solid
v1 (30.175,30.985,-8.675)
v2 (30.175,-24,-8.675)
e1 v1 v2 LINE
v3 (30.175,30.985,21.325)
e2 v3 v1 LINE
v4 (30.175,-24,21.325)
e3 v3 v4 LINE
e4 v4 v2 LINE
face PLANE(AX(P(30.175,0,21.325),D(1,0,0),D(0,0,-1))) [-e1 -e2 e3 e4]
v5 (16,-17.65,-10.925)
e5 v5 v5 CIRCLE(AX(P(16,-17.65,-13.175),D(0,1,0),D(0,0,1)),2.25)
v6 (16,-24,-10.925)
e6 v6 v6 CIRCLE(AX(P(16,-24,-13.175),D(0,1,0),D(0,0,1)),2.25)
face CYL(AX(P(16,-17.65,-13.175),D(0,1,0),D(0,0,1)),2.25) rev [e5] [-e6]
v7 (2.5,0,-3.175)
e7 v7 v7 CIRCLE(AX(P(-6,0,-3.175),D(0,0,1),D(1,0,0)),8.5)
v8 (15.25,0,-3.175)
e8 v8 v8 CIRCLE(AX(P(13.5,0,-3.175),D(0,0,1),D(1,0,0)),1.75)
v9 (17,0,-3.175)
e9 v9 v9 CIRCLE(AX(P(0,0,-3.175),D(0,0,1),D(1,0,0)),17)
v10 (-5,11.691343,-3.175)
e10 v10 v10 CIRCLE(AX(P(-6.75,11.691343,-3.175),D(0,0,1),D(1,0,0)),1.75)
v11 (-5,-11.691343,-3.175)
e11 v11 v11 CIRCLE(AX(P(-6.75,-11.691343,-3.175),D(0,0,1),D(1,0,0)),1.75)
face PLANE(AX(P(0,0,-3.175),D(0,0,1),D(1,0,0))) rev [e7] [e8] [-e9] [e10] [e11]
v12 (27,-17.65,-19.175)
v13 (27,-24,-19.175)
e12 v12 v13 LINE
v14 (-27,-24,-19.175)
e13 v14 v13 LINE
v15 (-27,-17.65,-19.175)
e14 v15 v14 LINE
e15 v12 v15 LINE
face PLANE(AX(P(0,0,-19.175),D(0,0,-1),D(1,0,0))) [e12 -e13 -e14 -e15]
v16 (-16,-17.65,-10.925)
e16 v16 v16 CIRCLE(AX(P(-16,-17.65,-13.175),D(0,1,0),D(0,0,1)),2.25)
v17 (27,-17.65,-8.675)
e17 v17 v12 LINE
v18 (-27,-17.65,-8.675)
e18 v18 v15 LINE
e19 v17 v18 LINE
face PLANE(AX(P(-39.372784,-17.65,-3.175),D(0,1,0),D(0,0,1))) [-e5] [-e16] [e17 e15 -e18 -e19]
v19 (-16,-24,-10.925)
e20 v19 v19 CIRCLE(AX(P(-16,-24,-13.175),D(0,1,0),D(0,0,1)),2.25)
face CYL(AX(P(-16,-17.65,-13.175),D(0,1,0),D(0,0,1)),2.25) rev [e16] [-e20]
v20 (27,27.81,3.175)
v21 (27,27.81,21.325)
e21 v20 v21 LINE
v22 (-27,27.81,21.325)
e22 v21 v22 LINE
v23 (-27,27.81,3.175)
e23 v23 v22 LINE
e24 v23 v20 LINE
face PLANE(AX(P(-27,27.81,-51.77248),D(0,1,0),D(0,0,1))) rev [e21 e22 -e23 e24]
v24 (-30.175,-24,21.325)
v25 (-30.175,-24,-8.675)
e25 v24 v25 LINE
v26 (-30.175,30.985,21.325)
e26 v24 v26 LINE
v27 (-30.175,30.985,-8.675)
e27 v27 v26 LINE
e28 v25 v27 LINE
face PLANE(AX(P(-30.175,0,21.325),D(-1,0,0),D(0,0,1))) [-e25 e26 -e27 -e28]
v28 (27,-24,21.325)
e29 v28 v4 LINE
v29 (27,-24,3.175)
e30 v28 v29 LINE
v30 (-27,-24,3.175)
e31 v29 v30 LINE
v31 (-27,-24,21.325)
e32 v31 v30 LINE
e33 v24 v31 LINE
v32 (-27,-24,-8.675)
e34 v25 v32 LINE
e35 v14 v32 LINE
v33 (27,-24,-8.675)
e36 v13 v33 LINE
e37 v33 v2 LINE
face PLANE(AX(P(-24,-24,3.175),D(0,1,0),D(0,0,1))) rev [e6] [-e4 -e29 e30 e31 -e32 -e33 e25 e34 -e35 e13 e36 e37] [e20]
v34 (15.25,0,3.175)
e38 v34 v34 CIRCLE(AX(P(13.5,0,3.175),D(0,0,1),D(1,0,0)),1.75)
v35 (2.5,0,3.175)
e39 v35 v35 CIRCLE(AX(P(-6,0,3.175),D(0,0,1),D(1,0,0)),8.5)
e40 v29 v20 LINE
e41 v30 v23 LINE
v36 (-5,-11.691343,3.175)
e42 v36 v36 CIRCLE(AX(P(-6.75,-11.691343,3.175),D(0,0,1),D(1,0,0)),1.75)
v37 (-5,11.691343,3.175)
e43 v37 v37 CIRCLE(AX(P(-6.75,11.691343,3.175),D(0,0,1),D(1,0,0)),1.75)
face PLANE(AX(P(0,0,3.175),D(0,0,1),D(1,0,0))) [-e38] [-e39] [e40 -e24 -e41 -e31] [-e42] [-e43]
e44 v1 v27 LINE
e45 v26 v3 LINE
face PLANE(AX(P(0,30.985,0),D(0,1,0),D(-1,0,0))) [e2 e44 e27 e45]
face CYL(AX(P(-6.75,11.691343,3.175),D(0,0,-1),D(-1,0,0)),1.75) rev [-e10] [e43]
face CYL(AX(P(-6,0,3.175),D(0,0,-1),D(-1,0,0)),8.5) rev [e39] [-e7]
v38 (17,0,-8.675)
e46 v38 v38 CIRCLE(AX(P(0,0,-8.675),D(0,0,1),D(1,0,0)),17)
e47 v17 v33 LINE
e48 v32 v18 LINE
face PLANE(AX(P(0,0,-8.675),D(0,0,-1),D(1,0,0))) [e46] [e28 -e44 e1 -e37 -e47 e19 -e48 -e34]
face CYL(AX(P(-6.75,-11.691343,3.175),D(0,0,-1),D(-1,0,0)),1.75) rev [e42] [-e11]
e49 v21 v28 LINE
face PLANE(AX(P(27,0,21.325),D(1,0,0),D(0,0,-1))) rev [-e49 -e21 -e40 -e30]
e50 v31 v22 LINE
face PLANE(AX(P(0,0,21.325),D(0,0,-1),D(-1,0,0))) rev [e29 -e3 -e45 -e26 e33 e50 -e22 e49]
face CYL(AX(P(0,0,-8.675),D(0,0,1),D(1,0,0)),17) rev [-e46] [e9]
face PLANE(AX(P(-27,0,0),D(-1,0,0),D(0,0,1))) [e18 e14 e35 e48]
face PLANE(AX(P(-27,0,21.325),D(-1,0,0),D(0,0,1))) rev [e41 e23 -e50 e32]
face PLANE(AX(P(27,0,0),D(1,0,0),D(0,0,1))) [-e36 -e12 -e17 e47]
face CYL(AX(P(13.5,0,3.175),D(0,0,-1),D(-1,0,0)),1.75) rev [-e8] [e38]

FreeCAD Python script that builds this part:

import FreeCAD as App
import Part
import Sketcher
from FreeCAD import Vector
Q = App.Units.Quantity


def add_polygon(sketch, points):
    """Adds a closed chain of lines whose ends are joined by coincident constraints."""
    first, n = sketch.GeometryCount, len(points)
    for a, b in zip(points, points[1:] + points[:1]):
        sketch.addGeometry(Part.LineSegment(App.Vector(*a, 0), App.Vector(*b, 0)), False)
    for i in range(n):
        sketch.addConstraint(Sketcher.Constraint("Coincident", first + i, 2, first + (i + 1) % n, 1))

doc = App.newDocument("Part")
body = doc.addObject("PartDesign::Body", "Body")

# Sketch on XY plane
sketch1 = doc.addObject("Sketcher::SketchObject", "Sketch")
body.addObject(sketch1)
sketch1.AttachmentSupport = (doc.XY_Plane, [""])
sketch1.MapMode = "FlatFace"
add_polygon(sketch1, [(-24, 24), (-24, -24), (24, -24), (24, 24)])  # lines 0-3
sketch1.addGeometry(Part.Circle(Vector(-6.8, -11.7, 0), Vector(0, 0, 1), 1.8), False)  # 4
sketch1.addGeometry(Part.Circle(Vector(-6, 0, 0), Vector(0, 0, 1), 8.5), False)  # 5
sketch1.addGeometry(Part.Circle(Vector(-6.8, 11.7, 0), Vector(0, 0, 1), 1.8), False)  # 6
sketch1.addGeometry(Part.Circle(Vector(13.5, 0, 0), Vector(0, 0, 1), 1.8), False)  # 7
sketch1.addConstraint(Sketcher.Constraint("Vertical", 0))
sketch1.addConstraint(Sketcher.Constraint("Horizontal", 1))
sketch1.addConstraint(Sketcher.Constraint("Vertical", 2))
sketch1.addConstraint(Sketcher.Constraint("Horizontal", 3))
sketch1.addConstraint(Sketcher.Constraint("Equal", 4, 6))
sketch1.addConstraint(Sketcher.Constraint("Equal", 6, 7))
sketch1.addConstraint(Sketcher.Constraint("Symmetric", 0, 2, 2, 2, -1, 1))
sketch1.addConstraint(Sketcher.Constraint("Symmetric", 4, 3, 6, 3, -1))
sketch1.addConstraint(Sketcher.Constraint("PointOnObject", 5, 3, -1))
sketch1.addConstraint(Sketcher.Constraint("PointOnObject", 7, 3, -1))
sketch1.addConstraint(Sketcher.Constraint("Equal", 3, 0))
sketch1.addConstraint(Sketcher.Constraint("Diameter", 5, Q("17 mm")))
sketch1.addConstraint(Sketcher.Constraint("Diameter", 4, Q("3.5 mm")))
sketch1.addConstraint(Sketcher.Constraint("DistanceX", 1, 1, 1, 2, Q("48 mm")))
sketch1.addConstraint(Sketcher.Constraint("DistanceX", 5, 3, -1, 1, Q("6 mm")))
sketch1.addConstraint(Sketcher.Constraint("DistanceX", -1, 1, 7, 3, Q("13.5 mm")))
sketch1.addConstraint(Sketcher.Constraint("DistanceX", 4, 3, -1, 1, Q("6.75 mm")))
sketch1.addConstraint(Sketcher.Constraint("DistanceY", 4, 3, -1, 1, Q("11.691343 mm")))
pad1 = doc.addObject("PartDesign::Pad", "Pad")
body.addObject(pad1)
pad1.Profile = sketch1
pad1.Length = 6.35
pad1.Midplane = True

# Sketch on YZ plane
sketch2 = doc.addObject("Sketcher::SketchObject", "Sketch001")
body.addObject(sketch2)
sketch2.AttachmentSupport = (doc.YZ_Plane, [""])
sketch2.MapMode = "FlatFace"
sketch2.AttachmentOffset = App.Placement(Vector(0, 0, 24), App.Rotation())
add_polygon(sketch2, [(-18, -3), (-24, -3), (-24, -17), (-18, -17)])  # lines 0-3
sketch2.addConstraint(Sketcher.Constraint("Horizontal", 0))
sketch2.addConstraint(Sketcher.Constraint("Vertical", 1))
sketch2.addConstraint(Sketcher.Constraint("Horizontal", 2))
sketch2.addConstraint(Sketcher.Constraint("Vertical", 3))
sketch2.addConstraint(Sketcher.Constraint("DistanceY", 1, 2, 1, 1, Q("14 mm")))
sketch2.addConstraint(Sketcher.Constraint("DistanceX", 0, 2, -1, 1, Q("24 mm")))
sketch2.addConstraint(Sketcher.Constraint("DistanceX", 0, 2, 0, 1, Q("6.35 mm")))
sketch2.addConstraint(Sketcher.Constraint("DistanceY", 0, 2, -1, 1, Q("3.175 mm")))
pad2 = doc.addObject("PartDesign::Pad", "Pad001")
body.addObject(pad2)
pad2.Profile = sketch2
pad2.Length = 48
pad2.Reversed = True

# Sketch on XY plane
sketch3 = doc.addObject("Sketcher::SketchObject", "Sketch002")
body.addObject(sketch3)
sketch3.AttachmentSupport = (doc.XY_Plane, [""])
sketch3.MapMode = "FlatFace"
sketch3.AttachmentOffset = App.Placement(Vector(0, 0, 3.175), App.Rotation())
add_polygon(sketch3, [(-24, 24), (-24, -24), (24, -24), (24, 24)])  # lines 0-3
sketch3.addGeometry(Part.Circle(Vector(0, 0, 0), Vector(0, 0, 1), 17), False)  # 4
sketch3.addConstraint(Sketcher.Constraint("Vertical", 0))
sketch3.addConstraint(Sketcher.Constraint("Horizontal", 1))
sketch3.addConstraint(Sketcher.Constraint("Vertical", 2))
sketch3.addConstraint(Sketcher.Constraint("Horizontal", 3))
sketch3.addConstraint(Sketcher.Constraint("Coincident", 4, 3, -1, 1))
sketch3.addConstraint(Sketcher.Constraint("Symmetric", 0, 2, 2, 2, -1, 1))
sketch3.addConstraint(Sketcher.Constraint("Equal", 3, 0))
sketch3.addConstraint(Sketcher.Constraint("Diameter", 4, Q("34 mm")))
sketch3.addConstraint(Sketcher.Constraint("DistanceX", 1, 1, 1, 2, Q("48 mm")))
pad3 = doc.addObject("PartDesign::Pad", "Pad002")
body.addObject(pad3)
pad3.Profile = sketch3
pad3.Length = 5.5
doc.recompute()

mirrored = doc.addObject("PartDesign::Mirrored", "Mirrored")
body.addObject(mirrored)
mirrored.Originals = [pad2, pad3]
mirrored.MirrorPlane = (doc.XY_Plane, [""])
body.Tip = mirrored

# Sketch on XZ plane
sketch4 = doc.addObject("Sketcher::SketchObject", "Sketch003")
body.addObject(sketch4)
sketch4.AttachmentSupport = (doc.XZ_Plane, [""])
sketch4.MapMode = "FlatFace"
sketch4.AttachmentOffset = App.Placement(Vector(0, 0, 17.65), App.Rotation())
sketch4.addGeometry(Part.Circle(Vector(-16, 13.2, 0), Vector(0, 0, 1), 2.2), False)
sketch4.addGeometry(Part.Circle(Vector(16, 13.2, 0), Vector(0, 0, 1), 2.2), False)
sketch4.addGeometry(Part.Circle(Vector(16, -13.2, 0), Vector(0, 0, 1), 2.2), False)
sketch4.addGeometry(Part.Circle(Vector(-16, -13.2, 0), Vector(0, 0, 1), 2.2), False)
sketch4.addConstraint(Sketcher.Constraint("Equal", 0, 1))
sketch4.addConstraint(Sketcher.Constraint("Equal", 1, 2))
sketch4.addConstraint(Sketcher.Constraint("Equal", 2, 3))
sketch4.addConstraint(Sketcher.Constraint("Symmetric", 0, 3, 2, 3, -1, 1))
sketch4.addConstraint(Sketcher.Constraint("Symmetric", 1, 3, 3, 3, -1, 1))
sketch4.addConstraint(Sketcher.Constraint("Symmetric", 0, 3, 1, 3, -2))
sketch4.addConstraint(Sketcher.Constraint("Diameter", 0, Q("4.5 mm")))
sketch4.addConstraint(Sketcher.Constraint("DistanceX", 0, 3, -1, 1, Q("16 mm")))
sketch4.addConstraint(Sketcher.Constraint("DistanceY", 2, 3, 1, 3, Q("26.35 mm")))
doc.recompute()
hole = doc.addObject("PartDesign::Hole", "Hole")
body.addObject(hole)
hole.Profile = sketch4
hole.ThreadType = "None"
hole.Diameter = 4.5
hole.DepthType = "ThroughAll"
hole.Reversed = True

# Sketch on XY plane
sketch5 = doc.addObject("Sketcher::SketchObject", "Sketch004")
body.addObject(sketch5)
sketch5.AttachmentSupport = (doc.XY_Plane, [""])
sketch5.MapMode = "FlatFace"
sketch5.AttachmentOffset = App.Placement(Vector(0, 0, 17.175), App.Rotation())
add_polygon(sketch5, [(-24, -18), (-24, -24), (24, -24), (24, -18)])  # lines 0-3
sketch5.addConstraint(Sketcher.Constraint("Vertical", 0))
sketch5.addConstraint(Sketcher.Constraint("Horizontal", 1))
sketch5.addConstraint(Sketcher.Constraint("Vertical", 2))
sketch5.addConstraint(Sketcher.Constraint("Horizontal", 3))
sketch5.addConstraint(Sketcher.Constraint("DistanceX", 1, 1, 1, 2, Q("48 mm")))
sketch5.addConstraint(Sketcher.Constraint("DistanceX", 0, 2, -1, 1, Q("24 mm")))
sketch5.addConstraint(Sketcher.Constraint("DistanceY", 0, 2, -1, 1, Q("24 mm")))
sketch5.addConstraint(Sketcher.Constraint("DistanceY", 0, 2, 0, 1, Q("6.35 mm")))
pad4 = doc.addObject("PartDesign::Pad", "Pad003")
body.addObject(pad4)
pad4.Profile = sketch5
pad4.Length = 2
doc.recompute()

mirrored2 = doc.addObject("PartDesign::Mirrored", "Mirrored001")
body.addObject(mirrored2)
mirrored2.Originals = [pad4]
mirrored2.MirrorPlane = (doc.XY_Plane, [""])
body.Tip = mirrored2

# Sketch on YZ plane
sketch6 = doc.addObject("Sketcher::SketchObject", "Sketch005")
body.addObject(sketch6)
sketch6.AttachmentSupport = (doc.YZ_Plane, [""])
sketch6.MapMode = "FlatFace"
sketch6.AttachmentOffset = App.Placement(Vector(0, 0, -24), App.Rotation())
add_polygon(sketch6, [(-18, -19), (-24, -19), (-24, 19), (-18, 19), (-18, 9), (24, 9), (24, -9), (-18, -9)])  # lines 0-7
sketch6.addConstraint(Sketcher.Constraint("Horizontal", 0))
sketch6.addConstraint(Sketcher.Constraint("Vertical", 1))
sketch6.addConstraint(Sketcher.Constraint("Horizontal", 2))
sketch6.addConstraint(Sketcher.Constraint("Vertical", 3))
sketch6.addConstraint(Sketcher.Constraint("Horizontal", 4))
sketch6.addConstraint(Sketcher.Constraint("Vertical", 5))
sketch6.addConstraint(Sketcher.Constraint("Horizontal", 6))
sketch6.addConstraint(Sketcher.Constraint("Vertical", 7))
sketch6.addConstraint(Sketcher.Constraint("Symmetric", 3, 2, 6, 2, -1))
sketch6.addConstraint(Sketcher.Constraint("Equal", 3, 7))
sketch6.addConstraint(Sketcher.Constraint("DistanceY", 3, 2, 3, 1, Q("10.5 mm")))
sketch6.addConstraint(Sketcher.Constraint("DistanceX", 0, 2, -1, 1, Q("24 mm")))
sketch6.addConstraint(Sketcher.Constraint("DistanceX", -1, 1, 4, 2, Q("24 mm")))
sketch6.addConstraint(Sketcher.Constraint("DistanceX", 0, 2, 0, 1, Q("6.35 mm")))
sketch6.addConstraint(Sketcher.Constraint("DistanceY", 1, 1, 1, 2, Q("38.35 mm")))
pad5 = doc.addObject("PartDesign::Pad", "Pad004")
body.addObject(pad5)
pad5.Profile = sketch6
pad5.Length = 3
pad5.Reversed = True
doc.recompute()

mirrored3 = doc.addObject("PartDesign::Mirrored", "Mirrored002")
body.addObject(mirrored3)
mirrored3.Originals = [pad5]
mirrored3.MirrorPlane = (doc.YZ_Plane, [""])
body.Tip = mirrored3

# Sketch on XY plane
sketch7 = doc.addObject("Sketcher::SketchObject", "Sketch006")
body.addObject(sketch7)
sketch7.AttachmentSupport = (doc.XY_Plane, [""])
sketch7.MapMode = "FlatFace"
sketch7.AttachmentOffset = App.Placement(Vector(0, 0, 19.175), App.Rotation())
add_polygon(sketch7, [(-27, 24), (-27, -24), (27, -24), (27, 24)])  # lines 0-3
sketch7.addConstraint(Sketcher.Constraint("Vertical", 0))
sketch7.addConstraint(Sketcher.Constraint("Horizontal", 1))
sketch7.addConstraint(Sketcher.Constraint("Vertical", 2))
sketch7.addConstraint(Sketcher.Constraint("Horizontal", 3))
sketch7.addConstraint(Sketcher.Constraint("Symmetric", 0, 2, 2, 2, -1, 1))
sketch7.addConstraint(Sketcher.Constraint("DistanceX", 1, 1, 1, 2, Q("54 mm")))
sketch7.addConstraint(Sketcher.Constraint("DistanceY", 0, 2, 0, 1, Q("48 mm")))
pocket1 = doc.addObject("PartDesign::Pocket", "Pocket")
body.addObject(pocket1)
pocket1.Profile = sketch7
pocket1.Length = 16

# Sketch on XY plane
sketch8 = doc.addObject("Sketcher::SketchObject", "Sketch007")
body.addObject(sketch8)
sketch8.AttachmentSupport = (doc.XY_Plane, [""])
sketch8.MapMode = "FlatFace"
sketch8.AttachmentOffset = App.Placement(Vector(0, 0, -8.675), App.Rotation())
add_polygon(sketch8, [(-27, -24), (-30.2, -24), (-30.2, 20.8), (30.2, 20.8), (30.2, -24), (27, -24), (27, 17.6), (-27, 17.6)])  # lines 0-7
sketch8.addConstraint(Sketcher.Constraint("Horizontal", 0))
sketch8.addConstraint(Sketcher.Constraint("Vertical", 1))
sketch8.addConstraint(Sketcher.Constraint("Horizontal", 2))
sketch8.addConstraint(Sketcher.Constraint("Vertical", 3))
sketch8.addConstraint(Sketcher.Constraint("Horizontal", 4))
sketch8.addConstraint(Sketcher.Constraint("Vertical", 5))
sketch8.addConstraint(Sketcher.Constraint("Horizontal", 6))
sketch8.addConstraint(Sketcher.Constraint("Vertical", 7))
sketch8.addConstraint(Sketcher.Constraint("Symmetric", 0, 2, 3, 2, -2))
sketch8.addConstraint(Sketcher.Constraint("Equal", 0, 4))
sketch8.addConstraint(Sketcher.Constraint("DistanceX", 6, 2, 6, 1, Q("54 mm")))
sketch8.addConstraint(Sketcher.Constraint("DistanceY", 0, 2, -1, 1, Q("24 mm")))
sketch8.addConstraint(Sketcher.Constraint("DistanceX", 2, 1, 2, 2, Q("60.35 mm")))
sketch8.addConstraint(Sketcher.Constraint("DistanceY", 5, 1, 5, 2, Q("41.65 mm")))
sketch8.addConstraint(Sketcher.Constraint("DistanceY", 1, 1, 1, 2, Q("44.825 mm")))
pad6 = doc.addObject("PartDesign::Pad", "Pad005")
body.addObject(pad6)
pad6.Profile = sketch8
pad6.Length = 30

# Sketch on XY plane
sketch9 = doc.addObject("Sketcher::SketchObject", "Sketch008")
body.addObject(sketch9)
sketch9.AttachmentSupport = (doc.XY_Plane, [""])
sketch9.MapMode = "FlatFace"
sketch9.AttachmentOffset = App.Placement(Vector(0, 0, 3.175), App.Rotation())
add_polygon(sketch9, [(-27, 24), (-27, 20.8), (27, 20.8), (27, 24)])  # lines 0-3
sketch9.addConstraint(Sketcher.Constraint("Vertical", 0))
sketch9.addConstraint(Sketcher.Constraint("Horizontal", 1))
sketch9.addConstraint(Sketcher.Constraint("Vertical", 2))
sketch9.addConstraint(Sketcher.Constraint("Horizontal", 3))
sketch9.addConstraint(Sketcher.Constraint("DistanceX", 1, 1, 1, 2, Q("54 mm")))
sketch9.addConstraint(Sketcher.Constraint("DistanceX", 0, 2, -1, 1, Q("27 mm")))
sketch9.addConstraint(Sketcher.Constraint("DistanceY", -1, 1, 2, 2, Q("24 mm")))
sketch9.addConstraint(Sketcher.Constraint("DistanceY", 0, 2, 0, 1, Q("3.175 mm")))
pocket2 = doc.addObject("PartDesign::Pocket", "Pocket001")
body.addObject(pocket2)
pocket2.Profile = sketch9
pocket2.Type = "ThroughAll"

# Sketch on XZ plane
sketch10 = doc.addObject("Sketcher::SketchObject", "Sketch009")
body.addObject(sketch10)
sketch10.AttachmentSupport = (doc.XZ_Plane, [""])
sketch10.MapMode = "FlatFace"
sketch10.AttachmentOffset = App.Placement(Vector(0, 0, -20.825), App.Rotation())
add_polygon(sketch10, [(-30, -9), (-30, 21), (30, 21), (30, -9)])  # lines 0-3
sketch10.addConstraint(Sketcher.Constraint("Vertical", 0))
sketch10.addConstraint(Sketcher.Constraint("Horizontal", 1))
sketch10.addConstraint(Sketcher.Constraint("Vertical", 2))
sketch10.addConstraint(Sketcher.Constraint("Horizontal", 3))
sketch10.addConstraint(Sketcher.Constraint("DistanceY", 0, 1, 0, 2, Q("30 mm")))
sketch10.addConstraint(Sketcher.Constraint("DistanceX", 1, 1, 1, 2, Q("60.35 mm")))
sketch10.addConstraint(Sketcher.Constraint("DistanceX", 0, 2, -1, 1, Q("30.175 mm")))
sketch10.addConstraint(Sketcher.Constraint("DistanceY", -1, 1, 0, 2, Q("21.325 mm")))
pad7 = doc.addObject("PartDesign::Pad", "Pad006")
body.addObject(pad7)
pad7.Profile = sketch10
pad7.Length = 10.16
pad7.Reversed = True

# Sketch on XY plane
sketch11 = doc.addObject("Sketcher::SketchObject", "Sketch010")
body.addObject(sketch11)
sketch11.AttachmentSupport = (doc.XY_Plane, [""])
sketch11.MapMode = "FlatFace"
sketch11.AttachmentOffset = App.Placement(Vector(0, 0, 21.325), App.Rotation())
add_polygon(sketch11, [(-27, 28), (-27, 18), (27, 18), (27, 28)])  # lines 0-3
sketch11.addConstraint(Sketcher.Constraint("Vertical", 0))
sketch11.addConstraint(Sketcher.Constraint("Horizontal", 1))
sketch11.addConstraint(Sketcher.Constraint("Vertical", 2))
sketch11.addConstraint(Sketcher.Constraint("Horizontal", 3))
sketch11.addConstraint(Sketcher.Constraint("DistanceX", 1, 1, 1, 2, Q("54 mm")))
sketch11.addConstraint(Sketcher.Constraint("DistanceX", 0, 2, -1, 1, Q("27 mm")))
sketch11.addConstraint(Sketcher.Constraint("DistanceY", 0, 2, 0, 1, Q("10.16 mm")))
sketch11.addConstraint(Sketcher.Constraint("DistanceY", -1, 1, 0, 2, Q("17.65 mm")))
pocket3 = doc.addObject("PartDesign::Pocket", "Pocket002")
body.addObject(pocket3)
pocket3.Profile = sketch11
pocket3.Length = 18.15

doc.recompute()
